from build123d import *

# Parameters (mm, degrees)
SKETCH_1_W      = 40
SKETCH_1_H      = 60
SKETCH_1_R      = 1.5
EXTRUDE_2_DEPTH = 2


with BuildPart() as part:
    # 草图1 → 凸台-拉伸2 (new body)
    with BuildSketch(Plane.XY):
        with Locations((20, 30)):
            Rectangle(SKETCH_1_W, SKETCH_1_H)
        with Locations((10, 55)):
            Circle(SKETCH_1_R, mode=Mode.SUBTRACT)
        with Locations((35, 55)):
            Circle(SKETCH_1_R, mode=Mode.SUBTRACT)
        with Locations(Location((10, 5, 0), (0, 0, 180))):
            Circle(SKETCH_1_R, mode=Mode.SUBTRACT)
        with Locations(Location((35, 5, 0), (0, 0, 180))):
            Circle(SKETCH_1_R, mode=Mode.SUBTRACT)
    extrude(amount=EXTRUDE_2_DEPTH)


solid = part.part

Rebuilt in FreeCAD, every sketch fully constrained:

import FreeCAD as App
import Part
import Sketcher
from FreeCAD import Vector
Q = App.Units.Quantity


def add_polygon(sketch, points):
    """Adds a closed chain of lines whose ends are joined by coincident constraints."""
    first, n = sketch.GeometryCount, len(points)
    for a, b in zip(points, points[1:] + points[:1]):
        sketch.addGeometry(Part.LineSegment(App.Vector(*a, 0), App.Vector(*b, 0)), False)
    for i in range(n):
        sketch.addConstraint(Sketcher.Constraint("Coincident", first + i, 2, first + (i + 1) % n, 1))

doc = App.newDocument("Part")
body = doc.addObject("PartDesign::Body", "Body")

# Sketch on XY plane
sketch1 = body.newObject("Sketcher::SketchObject", "Sketch")
sketch1.AttachmentSupport = (doc.getObject("XY_Plane"), [""])
sketch1.MapMode = "FlatFace"
add_polygon(sketch1, [(0, 60), (0, 0), (40, 0), (40, 60)])  # lines 0-3
sketch1.addGeometry(Part.Circle(Vector(10, 5, 0), Vector(0, 0, 1), 1.5), False)  # 4
sketch1.addGeometry(Part.Circle(Vector(35, 5, 0), Vector(0, 0, 1), 1.5), False)  # 5
sketch1.addGeometry(Part.Circle(Vector(10, 55, 0), Vector(0, 0, 1), 1.5), False)  # 6
sketch1.addGeometry(Part.Circle(Vector(35, 55, 0), Vector(0, 0, 1), 1.5), False)  # 7
sketch1.addConstraint([
    Sketcher.Constraint("Vertical", 0),
    Sketcher.Constraint("Horizontal", 1),
    Sketcher.Constraint("Vertical", 2),
    Sketcher.Constraint("Horizontal", 3),
    Sketcher.Constraint("Coincident", 0, 2, -1, 1),
    Sketcher.Constraint("Equal", 4, 5),
    Sketcher.Constraint("Equal", 5, 6),
    Sketcher.Constraint("Equal", 6, 7),
    Sketcher.Constraint("Horizontal", 4, 3, 5, 3),
    Sketcher.Constraint("Horizontal", 6, 3, 7, 3),
    Sketcher.Constraint("Vertical", 4, 3, 6, 3),
    Sketcher.Constraint("Vertical", 5, 3, 7, 3),
    Sketcher.Constraint("Diameter", 4, Q("3 mm")),
    Sketcher.Constraint("DistanceX", 1, 1, 1, 2, Q("40 mm")),
    Sketcher.Constraint("DistanceY", 0, 2, 0, 1, Q("60 mm")),
    Sketcher.Constraint("DistanceX", -1, 1, 4, 3, Q("10 mm")),
    Sketcher.Constraint("DistanceY", -1, 1, 4, 3, Q("5 mm")),
    Sketcher.Constraint("DistanceX", -1, 1, 5, 3, Q("35 mm")),
    Sketcher.Constraint("DistanceY", -1, 1, 6, 3, Q("55 mm")),
])
pad1 = body.newObject("PartDesign::Pad", "Pad")
pad1.Profile = sketch1
pad1.Length = 2

doc.recompute()
